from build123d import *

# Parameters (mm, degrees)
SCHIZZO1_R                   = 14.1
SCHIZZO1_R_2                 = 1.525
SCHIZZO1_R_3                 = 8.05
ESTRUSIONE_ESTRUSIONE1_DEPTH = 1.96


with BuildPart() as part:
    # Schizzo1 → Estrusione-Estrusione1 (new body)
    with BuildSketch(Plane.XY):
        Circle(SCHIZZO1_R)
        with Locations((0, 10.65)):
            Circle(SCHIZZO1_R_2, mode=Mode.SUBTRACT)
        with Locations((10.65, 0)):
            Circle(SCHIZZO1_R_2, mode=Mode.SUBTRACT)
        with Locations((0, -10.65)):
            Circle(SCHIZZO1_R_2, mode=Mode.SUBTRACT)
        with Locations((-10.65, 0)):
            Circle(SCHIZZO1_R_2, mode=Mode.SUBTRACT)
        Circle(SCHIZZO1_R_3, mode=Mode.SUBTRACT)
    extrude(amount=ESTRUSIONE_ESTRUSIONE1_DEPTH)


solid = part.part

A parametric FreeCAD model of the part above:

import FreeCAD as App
import Part
import Sketcher
from FreeCAD import Vector

doc = App.newDocument("Part")
params = doc.addObject("Spreadsheet::Sheet", "Params")
for row, (alias, value) in enumerate([
    ("sketch1_diameter", "28.2 mm"),
    ("sketch1_diameter2", "16.1 mm"),
    ("sketch1_diameter3", "3.05 mm"),
    ("pad1_length", "1.96 mm"),
], start=1):
    params.set(f"A{row}", alias)
    params.set(f"B{row}", "=" + value)
    params.setAlias(f"B{row}", alias)

body = doc.addObject("PartDesign::Body", "Body")

# Sketch on XY plane
sketch1 = body.newObject("Sketcher::SketchObject", "Sketch")
sketch1.AttachmentSupport = (doc.getObject("XY_Plane"), [""])
sketch1.MapMode = "FlatFace"
sketch1.addGeometry([
    Part.Circle(Vector(0, 0, 0), Vector(0, 0, 1), 14.1),  # 0
    Part.Circle(Vector(0, -10.65, 0), Vector(0, 0, 1), 1.525),  # 1
    Part.Circle(Vector(-10.65, 0, 0), Vector(0, 0, 1), 1.525),  # 2
    Part.Circle(Vector(0, 0, 0), Vector(0, 0, 1), 8.05),  # 3
    Part.Circle(Vector(10.65, 0, 0), Vector(0, 0, 1), 1.525),  # 4
    Part.Circle(Vector(0, 10.65, 0), Vector(0, 0, 1), 1.525),  # 5
], False)
sketch1.addConstraint([
    Sketcher.Constraint("Coincident", 0, 3, -1, 1),
    Sketcher.Constraint("Coincident", 3, 3, -1, 1),
    Sketcher.Constraint("Equal", 1, 2),
    Sketcher.Constraint("Equal", 2, 4),
    Sketcher.Constraint("Equal", 4, 5),
    Sketcher.Constraint("Symmetric", 2, 3, 4, 3, -1, 1),
    Sketcher.Constraint("Symmetric", 1, 3, 5, 3, -1, 1),
    Sketcher.Constraint("PointOnObject", 1, 3, -2),
    Sketcher.Constraint("PointOnObject", 2, 3, -1),
    Sketcher.Constraint("Diameter", 0, 28.2),
    Sketcher.Constraint("Diameter", 3, 16.1),
    Sketcher.Constraint("Diameter", 1, 3.05),
    Sketcher.Constraint("DistanceX", 2, 3, 4, 3, 21.3),
    Sketcher.Constraint("DistanceY", 1, 3, 5, 3, 21.3),
])
sketch1.setExpression("Constraints[9]", "Params.sketch1_diameter")
sketch1.setExpression("Constraints[10]", "Params.sketch1_diameter2")
sketch1.setExpression("Constraints[11]", "Params.sketch1_diameter3")
pad1 = body.newObject("PartDesign::Pad", "Pad")
pad1.Profile = sketch1
pad1.setExpression("Length", "Params.pad1_length")

doc.recompute()
